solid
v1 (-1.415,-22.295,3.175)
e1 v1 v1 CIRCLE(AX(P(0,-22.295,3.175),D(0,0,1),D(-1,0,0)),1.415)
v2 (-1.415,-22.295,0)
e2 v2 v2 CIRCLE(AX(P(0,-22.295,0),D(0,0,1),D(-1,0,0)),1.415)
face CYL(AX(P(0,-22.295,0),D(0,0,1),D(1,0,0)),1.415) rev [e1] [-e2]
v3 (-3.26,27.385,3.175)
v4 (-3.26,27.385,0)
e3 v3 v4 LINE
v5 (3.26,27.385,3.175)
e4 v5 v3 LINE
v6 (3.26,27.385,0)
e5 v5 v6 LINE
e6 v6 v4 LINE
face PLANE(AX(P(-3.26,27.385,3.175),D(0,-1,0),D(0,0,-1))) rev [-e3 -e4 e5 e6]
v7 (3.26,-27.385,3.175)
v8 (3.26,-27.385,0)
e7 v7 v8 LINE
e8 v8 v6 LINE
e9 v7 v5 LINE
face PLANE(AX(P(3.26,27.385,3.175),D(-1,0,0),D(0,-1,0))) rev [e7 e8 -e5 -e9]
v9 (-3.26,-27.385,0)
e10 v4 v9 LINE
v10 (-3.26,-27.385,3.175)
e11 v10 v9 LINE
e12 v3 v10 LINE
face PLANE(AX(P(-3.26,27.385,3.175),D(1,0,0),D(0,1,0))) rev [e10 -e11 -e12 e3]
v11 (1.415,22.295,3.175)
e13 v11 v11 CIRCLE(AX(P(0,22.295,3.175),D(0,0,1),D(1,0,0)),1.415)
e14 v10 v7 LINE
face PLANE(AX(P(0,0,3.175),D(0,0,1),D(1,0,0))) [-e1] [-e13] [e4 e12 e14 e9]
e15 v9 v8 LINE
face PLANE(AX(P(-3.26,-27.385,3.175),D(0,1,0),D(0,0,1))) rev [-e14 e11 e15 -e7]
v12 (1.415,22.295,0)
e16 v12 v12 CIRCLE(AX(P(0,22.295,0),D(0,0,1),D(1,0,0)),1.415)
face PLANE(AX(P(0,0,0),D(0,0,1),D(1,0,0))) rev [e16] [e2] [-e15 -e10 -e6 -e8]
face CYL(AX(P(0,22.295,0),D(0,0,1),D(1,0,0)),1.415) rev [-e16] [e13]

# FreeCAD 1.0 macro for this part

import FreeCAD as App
import Part
import Sketcher

V = App.Vector
Q = App.Units.Quantity


def add_polygon(sketch, points):
    """Adds a closed chain of lines whose ends are joined by coincident constraints."""
    first, n = sketch.GeometryCount, len(points)
    for a, b in zip(points, points[1:] + points[:1]):
        sketch.addGeometry(Part.LineSegment(App.Vector(*a, 0), App.Vector(*b, 0)), False)
    for i in range(n):
        sketch.addConstraint(Sketcher.Constraint("Coincident", first + i, 2, first + (i + 1) % n, 1))

doc = App.newDocument("Part")
params = doc.addObject("Spreadsheet::Sheet", "Params")
for row, (alias, value) in enumerate([
    ("pad1_length", "0.125 in"),
], start=1):
    params.set(f"A{row}", alias)
    params.set(f"B{row}", "=" + value)
    params.setAlias(f"B{row}", alias)

body = doc.addObject("PartDesign::Body", "Body")

# Sketch on XY plane
sketch1 = body.newObject("Sketcher::SketchObject", "Sketch")
sketch1.AttachmentSupport = (doc.getObject("XY_Plane"), [""])
sketch1.MapMode = "FlatFace"
add_polygon(sketch1, [(-3, 27), (-3, -27), (3, -27), (3, 27)])  # lines 0-3
sketch1.addConstraint([
    Sketcher.Constraint("Vertical", 0),
    Sketcher.Constraint("Horizontal", 1),
    Sketcher.Constraint("Vertical", 2),
    Sketcher.Constraint("Horizontal", 3),
    Sketcher.Constraint("Symmetric", 0, 2, 2, 2, -1, 1),
    Sketcher.Constraint("DistanceX", 1, 1, 1, 2, Q("6.52 mm")),
    Sketcher.Constraint("DistanceY", 0, 2, 0, 1, Q("54.77 mm")),
])
pad1 = body.newObject("PartDesign::Pad", "Pad")
pad1.Profile = sketch1
pad1.setExpression("Length", "Params.pad1_length")

# Sketch on XY plane
sketch2 = body.newObject("Sketcher::SketchObject", "Sketch001")
sketch2.AttachmentSupport = (doc.getObject("XY_Plane"), [""])
sketch2.MapMode = "FlatFace"
sketch2.AttachmentOffset = App.Placement(V(0, 0, 0.125 * 25.4), App.Rotation())
sketch2.addGeometry([
    Part.Circle(V(0, 22.3, 0), V(0, 0, 1), 1.4),
    Part.Circle(V(0, -22.3, 0), V(0, 0, 1), 1.4),
], False)
sketch2.addConstraint([
    Sketcher.Constraint("Equal", 0, 1),
    Sketcher.Constraint("Symmetric", 0, 3, 1, 3, -1, 1),
    Sketcher.Constraint("PointOnObject", 0, 3, -2),
    Sketcher.Constraint("Diameter", 0, Q("2.83 mm")),
    Sketcher.Constraint("DistanceY", -1, 1, 0, 3, Q("22.295 mm")),
])
pocket1 = body.newObject("PartDesign::Pocket", "Pocket")
pocket1.Profile = sketch2
pocket1.Type = "ThroughAll"

doc.recompute()
